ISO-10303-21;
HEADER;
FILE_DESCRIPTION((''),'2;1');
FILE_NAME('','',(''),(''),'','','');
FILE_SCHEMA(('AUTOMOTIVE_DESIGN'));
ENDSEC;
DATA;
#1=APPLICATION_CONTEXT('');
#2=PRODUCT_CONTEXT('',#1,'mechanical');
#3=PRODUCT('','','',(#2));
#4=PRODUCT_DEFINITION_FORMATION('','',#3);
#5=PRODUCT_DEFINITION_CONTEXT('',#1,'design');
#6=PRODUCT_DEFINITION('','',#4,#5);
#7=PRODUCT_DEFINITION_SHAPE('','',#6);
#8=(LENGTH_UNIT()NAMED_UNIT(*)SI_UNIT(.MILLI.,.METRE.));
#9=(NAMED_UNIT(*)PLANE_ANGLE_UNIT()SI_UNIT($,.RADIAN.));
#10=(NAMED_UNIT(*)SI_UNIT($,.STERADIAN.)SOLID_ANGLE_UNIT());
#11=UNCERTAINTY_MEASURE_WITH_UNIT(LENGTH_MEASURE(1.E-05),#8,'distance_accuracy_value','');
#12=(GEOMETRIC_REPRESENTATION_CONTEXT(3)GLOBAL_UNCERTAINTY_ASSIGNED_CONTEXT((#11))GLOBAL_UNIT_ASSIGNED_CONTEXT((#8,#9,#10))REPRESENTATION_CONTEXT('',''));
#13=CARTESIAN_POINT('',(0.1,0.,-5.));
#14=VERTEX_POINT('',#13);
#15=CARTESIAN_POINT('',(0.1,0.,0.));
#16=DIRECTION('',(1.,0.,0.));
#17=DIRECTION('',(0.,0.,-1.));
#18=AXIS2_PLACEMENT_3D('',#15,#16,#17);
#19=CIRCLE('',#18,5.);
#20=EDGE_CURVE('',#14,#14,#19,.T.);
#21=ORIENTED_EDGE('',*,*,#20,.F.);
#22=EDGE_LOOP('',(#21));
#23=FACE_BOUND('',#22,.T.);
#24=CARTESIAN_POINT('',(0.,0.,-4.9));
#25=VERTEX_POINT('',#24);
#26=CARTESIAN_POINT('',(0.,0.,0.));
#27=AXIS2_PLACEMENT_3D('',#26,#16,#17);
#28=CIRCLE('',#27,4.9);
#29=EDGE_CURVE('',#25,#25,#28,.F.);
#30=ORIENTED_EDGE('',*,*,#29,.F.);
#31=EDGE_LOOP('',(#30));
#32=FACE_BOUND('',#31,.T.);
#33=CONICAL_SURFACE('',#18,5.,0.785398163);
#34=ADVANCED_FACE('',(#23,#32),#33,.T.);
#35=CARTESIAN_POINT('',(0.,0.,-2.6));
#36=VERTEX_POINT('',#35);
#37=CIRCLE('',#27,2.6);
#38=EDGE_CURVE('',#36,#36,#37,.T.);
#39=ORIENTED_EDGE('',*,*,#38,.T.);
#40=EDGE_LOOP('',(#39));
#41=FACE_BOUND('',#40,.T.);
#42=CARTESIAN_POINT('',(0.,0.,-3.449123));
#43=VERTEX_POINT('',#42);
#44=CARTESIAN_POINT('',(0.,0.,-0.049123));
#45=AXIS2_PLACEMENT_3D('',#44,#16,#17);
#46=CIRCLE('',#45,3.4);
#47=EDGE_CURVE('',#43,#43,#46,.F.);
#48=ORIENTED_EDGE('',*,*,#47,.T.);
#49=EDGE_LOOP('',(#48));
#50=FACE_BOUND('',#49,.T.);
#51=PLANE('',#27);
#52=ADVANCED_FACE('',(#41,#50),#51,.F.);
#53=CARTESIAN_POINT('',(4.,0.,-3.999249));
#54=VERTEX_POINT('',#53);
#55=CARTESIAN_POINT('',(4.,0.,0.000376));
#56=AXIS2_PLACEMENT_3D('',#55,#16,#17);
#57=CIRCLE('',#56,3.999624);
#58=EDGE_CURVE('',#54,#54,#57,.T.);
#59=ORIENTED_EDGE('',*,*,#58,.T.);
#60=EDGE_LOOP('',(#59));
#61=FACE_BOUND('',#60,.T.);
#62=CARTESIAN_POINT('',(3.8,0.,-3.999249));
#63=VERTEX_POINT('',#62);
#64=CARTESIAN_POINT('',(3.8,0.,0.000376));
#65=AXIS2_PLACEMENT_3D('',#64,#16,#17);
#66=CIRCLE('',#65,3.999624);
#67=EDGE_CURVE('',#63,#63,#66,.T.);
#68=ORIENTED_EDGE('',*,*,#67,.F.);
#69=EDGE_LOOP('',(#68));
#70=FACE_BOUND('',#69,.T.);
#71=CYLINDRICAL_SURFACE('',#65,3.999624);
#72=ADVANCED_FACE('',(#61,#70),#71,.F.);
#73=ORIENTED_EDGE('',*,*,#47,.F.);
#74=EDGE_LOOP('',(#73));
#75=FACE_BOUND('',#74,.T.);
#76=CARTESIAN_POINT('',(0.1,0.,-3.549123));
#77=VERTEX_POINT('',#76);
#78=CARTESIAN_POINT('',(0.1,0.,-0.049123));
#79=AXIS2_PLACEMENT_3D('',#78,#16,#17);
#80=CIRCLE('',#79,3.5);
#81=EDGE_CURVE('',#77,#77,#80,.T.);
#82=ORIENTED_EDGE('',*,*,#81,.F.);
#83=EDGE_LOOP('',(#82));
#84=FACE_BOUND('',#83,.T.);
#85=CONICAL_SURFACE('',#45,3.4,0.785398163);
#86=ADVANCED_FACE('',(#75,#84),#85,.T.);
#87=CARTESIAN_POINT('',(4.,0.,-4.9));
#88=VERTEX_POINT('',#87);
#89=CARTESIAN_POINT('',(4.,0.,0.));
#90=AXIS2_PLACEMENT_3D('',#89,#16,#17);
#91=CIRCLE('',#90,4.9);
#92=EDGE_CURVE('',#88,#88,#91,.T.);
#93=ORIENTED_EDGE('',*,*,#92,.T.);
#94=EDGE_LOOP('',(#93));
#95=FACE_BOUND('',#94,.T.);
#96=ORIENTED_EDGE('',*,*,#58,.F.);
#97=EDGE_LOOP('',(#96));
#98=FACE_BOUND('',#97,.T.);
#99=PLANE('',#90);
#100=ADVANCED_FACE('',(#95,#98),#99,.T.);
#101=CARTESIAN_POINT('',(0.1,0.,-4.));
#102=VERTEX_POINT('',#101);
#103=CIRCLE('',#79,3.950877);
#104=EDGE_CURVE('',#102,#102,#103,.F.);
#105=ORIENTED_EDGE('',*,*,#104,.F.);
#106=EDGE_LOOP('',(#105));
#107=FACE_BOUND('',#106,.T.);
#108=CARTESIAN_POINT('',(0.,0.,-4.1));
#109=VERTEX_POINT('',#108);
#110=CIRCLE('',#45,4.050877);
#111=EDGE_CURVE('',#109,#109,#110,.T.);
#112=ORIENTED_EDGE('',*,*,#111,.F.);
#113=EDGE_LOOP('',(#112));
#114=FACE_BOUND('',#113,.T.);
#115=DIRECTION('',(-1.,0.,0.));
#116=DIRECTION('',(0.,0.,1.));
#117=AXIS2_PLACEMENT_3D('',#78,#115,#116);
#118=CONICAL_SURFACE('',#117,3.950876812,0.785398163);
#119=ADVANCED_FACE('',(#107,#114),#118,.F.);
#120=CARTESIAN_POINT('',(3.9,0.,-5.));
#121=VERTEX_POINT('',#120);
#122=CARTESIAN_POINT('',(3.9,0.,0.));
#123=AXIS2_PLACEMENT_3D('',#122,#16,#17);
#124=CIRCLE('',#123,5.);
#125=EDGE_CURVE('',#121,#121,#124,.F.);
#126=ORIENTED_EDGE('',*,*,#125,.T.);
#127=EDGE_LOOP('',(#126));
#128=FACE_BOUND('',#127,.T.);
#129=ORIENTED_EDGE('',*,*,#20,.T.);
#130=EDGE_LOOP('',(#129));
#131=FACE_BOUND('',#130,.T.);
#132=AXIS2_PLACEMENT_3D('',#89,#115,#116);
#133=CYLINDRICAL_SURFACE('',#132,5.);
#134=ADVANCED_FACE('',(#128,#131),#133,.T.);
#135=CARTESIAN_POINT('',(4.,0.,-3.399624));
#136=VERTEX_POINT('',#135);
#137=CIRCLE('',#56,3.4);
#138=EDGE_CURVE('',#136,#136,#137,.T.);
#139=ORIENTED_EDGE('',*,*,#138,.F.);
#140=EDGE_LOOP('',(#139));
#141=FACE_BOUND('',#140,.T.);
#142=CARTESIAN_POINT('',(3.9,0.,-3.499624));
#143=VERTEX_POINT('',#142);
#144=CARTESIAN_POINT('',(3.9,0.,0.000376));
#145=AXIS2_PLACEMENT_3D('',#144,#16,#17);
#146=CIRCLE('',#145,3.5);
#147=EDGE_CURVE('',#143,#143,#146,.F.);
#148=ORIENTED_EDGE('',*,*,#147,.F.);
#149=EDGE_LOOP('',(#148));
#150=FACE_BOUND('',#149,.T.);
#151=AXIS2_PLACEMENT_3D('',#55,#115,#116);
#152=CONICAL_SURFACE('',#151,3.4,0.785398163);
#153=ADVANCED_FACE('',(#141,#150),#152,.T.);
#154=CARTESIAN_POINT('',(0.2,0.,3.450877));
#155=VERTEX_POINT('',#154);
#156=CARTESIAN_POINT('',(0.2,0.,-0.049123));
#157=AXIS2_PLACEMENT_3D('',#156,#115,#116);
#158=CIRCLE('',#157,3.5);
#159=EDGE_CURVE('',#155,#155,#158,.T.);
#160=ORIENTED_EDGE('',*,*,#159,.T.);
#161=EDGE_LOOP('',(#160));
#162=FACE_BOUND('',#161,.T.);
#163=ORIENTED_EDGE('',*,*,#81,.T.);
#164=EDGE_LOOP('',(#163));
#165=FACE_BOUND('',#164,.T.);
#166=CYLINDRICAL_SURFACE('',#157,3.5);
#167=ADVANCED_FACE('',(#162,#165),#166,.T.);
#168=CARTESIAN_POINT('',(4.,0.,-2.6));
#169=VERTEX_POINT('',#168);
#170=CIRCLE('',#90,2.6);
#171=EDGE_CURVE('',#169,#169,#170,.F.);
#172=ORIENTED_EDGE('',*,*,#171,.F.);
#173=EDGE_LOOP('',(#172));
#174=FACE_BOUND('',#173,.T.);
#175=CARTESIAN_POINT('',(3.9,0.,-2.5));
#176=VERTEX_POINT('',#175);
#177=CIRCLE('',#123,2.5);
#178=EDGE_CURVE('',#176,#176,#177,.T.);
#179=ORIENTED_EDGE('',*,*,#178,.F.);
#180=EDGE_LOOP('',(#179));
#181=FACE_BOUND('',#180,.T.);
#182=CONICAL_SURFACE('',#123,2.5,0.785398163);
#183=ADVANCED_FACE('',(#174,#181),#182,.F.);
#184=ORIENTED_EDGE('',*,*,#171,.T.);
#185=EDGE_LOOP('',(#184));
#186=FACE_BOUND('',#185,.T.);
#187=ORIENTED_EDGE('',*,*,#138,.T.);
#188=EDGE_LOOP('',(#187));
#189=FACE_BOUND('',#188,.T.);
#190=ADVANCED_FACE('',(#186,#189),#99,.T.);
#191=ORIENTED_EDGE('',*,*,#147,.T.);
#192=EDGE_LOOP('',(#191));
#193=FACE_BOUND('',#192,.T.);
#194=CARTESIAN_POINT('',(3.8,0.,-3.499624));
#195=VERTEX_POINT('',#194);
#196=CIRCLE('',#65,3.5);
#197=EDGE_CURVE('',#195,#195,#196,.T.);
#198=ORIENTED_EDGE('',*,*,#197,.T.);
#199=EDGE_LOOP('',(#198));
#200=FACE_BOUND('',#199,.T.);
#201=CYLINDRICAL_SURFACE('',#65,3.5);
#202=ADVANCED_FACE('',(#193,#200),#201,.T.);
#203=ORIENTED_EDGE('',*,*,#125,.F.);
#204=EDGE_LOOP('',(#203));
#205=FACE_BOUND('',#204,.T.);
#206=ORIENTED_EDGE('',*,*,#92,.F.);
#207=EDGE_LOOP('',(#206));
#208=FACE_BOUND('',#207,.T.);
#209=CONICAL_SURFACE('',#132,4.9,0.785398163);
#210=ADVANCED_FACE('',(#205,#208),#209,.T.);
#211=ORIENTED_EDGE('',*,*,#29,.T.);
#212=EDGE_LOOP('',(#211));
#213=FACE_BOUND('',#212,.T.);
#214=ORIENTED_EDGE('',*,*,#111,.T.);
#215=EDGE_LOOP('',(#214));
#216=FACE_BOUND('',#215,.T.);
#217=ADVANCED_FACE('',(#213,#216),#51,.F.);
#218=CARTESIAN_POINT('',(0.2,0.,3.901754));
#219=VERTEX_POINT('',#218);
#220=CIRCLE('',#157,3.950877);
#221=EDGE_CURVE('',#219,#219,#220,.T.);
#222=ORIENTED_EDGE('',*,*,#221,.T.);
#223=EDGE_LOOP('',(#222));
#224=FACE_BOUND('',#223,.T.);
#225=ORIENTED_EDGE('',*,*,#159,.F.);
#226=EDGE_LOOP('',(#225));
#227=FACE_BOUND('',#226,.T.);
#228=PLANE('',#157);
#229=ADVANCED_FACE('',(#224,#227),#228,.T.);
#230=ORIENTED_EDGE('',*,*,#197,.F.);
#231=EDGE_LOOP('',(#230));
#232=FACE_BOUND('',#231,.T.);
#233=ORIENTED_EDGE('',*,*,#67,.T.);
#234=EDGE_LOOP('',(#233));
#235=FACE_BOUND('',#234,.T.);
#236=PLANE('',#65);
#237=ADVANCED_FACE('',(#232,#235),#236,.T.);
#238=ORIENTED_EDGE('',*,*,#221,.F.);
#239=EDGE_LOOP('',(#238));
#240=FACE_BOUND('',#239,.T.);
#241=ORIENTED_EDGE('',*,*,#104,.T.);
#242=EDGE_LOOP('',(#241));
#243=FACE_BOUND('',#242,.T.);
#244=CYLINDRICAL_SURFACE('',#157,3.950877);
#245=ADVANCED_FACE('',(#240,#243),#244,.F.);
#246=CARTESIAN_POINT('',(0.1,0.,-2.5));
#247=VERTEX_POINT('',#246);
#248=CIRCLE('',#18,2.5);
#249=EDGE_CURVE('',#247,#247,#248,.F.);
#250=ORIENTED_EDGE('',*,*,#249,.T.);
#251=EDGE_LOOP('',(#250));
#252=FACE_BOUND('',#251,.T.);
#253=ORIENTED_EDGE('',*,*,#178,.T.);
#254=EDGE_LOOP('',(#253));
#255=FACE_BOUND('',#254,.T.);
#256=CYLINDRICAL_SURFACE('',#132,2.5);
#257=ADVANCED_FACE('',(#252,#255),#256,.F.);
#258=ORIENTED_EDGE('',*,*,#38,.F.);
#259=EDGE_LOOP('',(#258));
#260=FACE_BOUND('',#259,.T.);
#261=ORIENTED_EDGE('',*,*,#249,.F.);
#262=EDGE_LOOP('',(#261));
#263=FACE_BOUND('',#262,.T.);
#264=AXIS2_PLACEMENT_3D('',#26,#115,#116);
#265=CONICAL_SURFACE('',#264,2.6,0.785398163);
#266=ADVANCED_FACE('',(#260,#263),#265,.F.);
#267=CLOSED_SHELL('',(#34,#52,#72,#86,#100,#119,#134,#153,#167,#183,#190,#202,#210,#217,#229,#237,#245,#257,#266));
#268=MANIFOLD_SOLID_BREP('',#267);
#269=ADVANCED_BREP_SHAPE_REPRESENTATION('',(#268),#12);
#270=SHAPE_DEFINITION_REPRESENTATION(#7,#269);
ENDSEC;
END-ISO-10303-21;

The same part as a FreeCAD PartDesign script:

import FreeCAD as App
import Part
import Sketcher

V = App.Vector


def edges_at(feature, points):
    """Names of the edges that pass closest to the given points."""
    edges = feature.Shape.Edges
    near = lambda p: min(range(len(edges)), key=lambda i: edges[i].distToShape(Part.Vertex(*p))[0])
    return sorted({f"Edge{near(p) + 1}" for p in points})

doc = App.newDocument("Part")
params = doc.addObject("Spreadsheet::Sheet", "Params")
for row, (alias, value) in enumerate([
    ("sketch1_diameter", "10 mm"),
    ("sketch1_diameter2", "5 mm"),
    ("pad1_length", "4 mm"),
    ("sketch2_diameter", "7 mm"),
    ("pocket1_length", "0.2 mm"),
    ("sketch3_diameter", "7 mm"),
    ("pocket2_length", "0.2 mm"),
    ("chamfer_size", "0.1 mm"),
], start=1):
    params.set(f"A{row}", alias)
    params.set(f"B{row}", "=" + value)
    params.setAlias(f"B{row}", alias)

body = doc.addObject("PartDesign::Body", "Body")

sketch1 = body.newObject("Sketcher::SketchObject", "Sketch")
sketch1.AttachmentSupport = (doc.getObject("YZ_Plane"), [""])
sketch1.MapMode = "FlatFace"
sketch1.addGeometry([
    Part.Circle(V(0, 0, 0), V(0, 0, 1), 5),
    Part.Circle(V(0, 0, 0), V(0, 0, 1), 2.5),
], False)
sketch1.addConstraint([
    Sketcher.Constraint("Coincident", 0, 3, -1, 1),
    Sketcher.Constraint("Coincident", 1, 3, -1, 1),
    Sketcher.Constraint("Diameter", 0, 10.0),
    Sketcher.Constraint("Diameter", 1, 5.0),
])
sketch1.setExpression("Constraints[2]", "Params.sketch1_diameter")
sketch1.setExpression("Constraints[3]", "Params.sketch1_diameter2")
pad1 = body.newObject("PartDesign::Pad", "Pad")
pad1.Profile = sketch1
pad1.setExpression("Length", "Params.pad1_length")

sketch2 = body.newObject("Sketcher::SketchObject", "Sketch001")
sketch2.AttachmentSupport = (doc.getObject("YZ_Plane"), [""])
sketch2.MapMode = "FlatFace"
sketch2.AttachmentOffset = App.Placement(V(0, 0, 4), App.Rotation())
sketch2.addGeometry([
    Part.Circle(V(0, 0.000376, 0), V(0, 0, 1), 3.999624),
    Part.Circle(V(0, 0.000376, 0), V(0, 0, 1), 3.5),
], False)
sketch2.addConstraint([
    Sketcher.Constraint("Coincident", 1, 3, 0, 3),
    Sketcher.Constraint("PointOnObject", 0, 3, -2),
    Sketcher.Constraint("Diameter", 1, 7.0),
    Sketcher.Constraint("Diameter", 0, 7.999249),
    Sketcher.Constraint("DistanceY", -1, 1, 0, 3, 0.000376),
])
sketch2.setExpression("Constraints[2]", "Params.sketch2_diameter")
pocket1 = body.newObject("PartDesign::Pocket", "Pocket")
pocket1.Profile = sketch2
pocket1.setExpression("Length", "Params.pocket1_length")

sketch3 = body.newObject("Sketcher::SketchObject", "Sketch002")
sketch3.AttachmentSupport = (doc.getObject("YZ_Plane"), [""])
sketch3.MapMode = "FlatFace"
sketch3.addGeometry([
    Part.Circle(V(0, -0.049123, 0), V(0, 0, 1), 3.950877),
    Part.Circle(V(0, -0.049123, 0), V(0, 0, 1), 3.5),
], False)
sketch3.addConstraint([
    Sketcher.Constraint("Coincident", 1, 3, 0, 3),
    Sketcher.Constraint("PointOnObject", 0, 3, -2),
    Sketcher.Constraint("Diameter", 1, 7.0),
    Sketcher.Constraint("Diameter", 0, 7.901754),
    Sketcher.Constraint("DistanceY", 0, 3, -1, 1, 0.049123),
])
sketch3.setExpression("Constraints[2]", "Params.sketch3_diameter")
pocket2 = body.newObject("PartDesign::Pocket", "Pocket001")
pocket2.Profile = sketch3
pocket2.setExpression("Length", "Params.pocket2_length")
pocket2.Reversed = True
doc.recompute()

chamfer = body.newObject("PartDesign::Chamfer", "Chamfer")
chamfer.Base = (pocket2, edges_at(pocket2, [
    (4, 0, 3.5),
    (0, 0, 5),
    (0, 0, -4),
    (0, 0, -3.549),
    (4, 0, 5),
    (0, 0, 2.5),
    (4, 0, 2.5),
]))
chamfer.setExpression("Size", "Params.chamfer_size")

doc.recompute()
